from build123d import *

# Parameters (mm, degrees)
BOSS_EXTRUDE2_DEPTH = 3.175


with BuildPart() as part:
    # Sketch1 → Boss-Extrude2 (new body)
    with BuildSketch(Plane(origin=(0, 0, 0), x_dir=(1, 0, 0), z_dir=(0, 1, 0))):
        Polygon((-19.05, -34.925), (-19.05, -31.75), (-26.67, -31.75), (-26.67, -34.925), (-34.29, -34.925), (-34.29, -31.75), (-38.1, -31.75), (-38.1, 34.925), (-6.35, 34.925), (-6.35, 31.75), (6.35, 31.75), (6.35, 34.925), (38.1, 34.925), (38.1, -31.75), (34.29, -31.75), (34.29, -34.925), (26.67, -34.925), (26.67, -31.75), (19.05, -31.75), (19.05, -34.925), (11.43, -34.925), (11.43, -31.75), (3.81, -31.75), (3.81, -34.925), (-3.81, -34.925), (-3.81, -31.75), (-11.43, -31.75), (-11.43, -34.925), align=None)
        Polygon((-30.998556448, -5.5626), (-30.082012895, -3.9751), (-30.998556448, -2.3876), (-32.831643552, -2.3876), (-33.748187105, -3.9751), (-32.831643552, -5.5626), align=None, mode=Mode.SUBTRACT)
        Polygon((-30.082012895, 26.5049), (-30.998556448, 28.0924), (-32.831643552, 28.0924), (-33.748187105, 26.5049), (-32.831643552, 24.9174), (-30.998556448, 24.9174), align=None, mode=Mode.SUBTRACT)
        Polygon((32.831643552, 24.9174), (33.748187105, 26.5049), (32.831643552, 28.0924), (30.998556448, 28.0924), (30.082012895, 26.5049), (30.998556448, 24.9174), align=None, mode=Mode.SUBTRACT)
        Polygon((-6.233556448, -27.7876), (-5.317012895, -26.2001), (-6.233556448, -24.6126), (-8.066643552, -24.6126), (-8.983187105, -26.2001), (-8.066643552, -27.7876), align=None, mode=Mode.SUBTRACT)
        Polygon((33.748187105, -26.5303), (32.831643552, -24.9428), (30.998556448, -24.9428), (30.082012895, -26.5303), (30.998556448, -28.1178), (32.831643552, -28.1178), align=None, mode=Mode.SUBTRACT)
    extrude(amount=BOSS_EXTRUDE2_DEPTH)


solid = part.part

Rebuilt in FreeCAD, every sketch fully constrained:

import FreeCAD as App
import Part
import Sketcher
Q = App.Units.Quantity

doc = App.newDocument("Part")
body = doc.addObject("PartDesign::Body", "Body")

sketch1 = doc.addObject("Sketcher::SketchObject", "Sketch")
body.addObject(sketch1)
sketch1.AttachmentSupport = (doc.XZ_Plane, [""])
sketch1.MapMode = "FlatFace"
sketch1.addGeometry([
    Part.LineSegment(App.Vector(-19.1, 31.8, 0), App.Vector(-19.1, 34.9, 0)),
    Part.LineSegment(App.Vector(-19.1, 34.9, 0), App.Vector(-11.4, 34.9, 0)),
    Part.LineSegment(App.Vector(-11.4, 34.9, 0), App.Vector(-11.4, 31.8, 0)),
    Part.LineSegment(App.Vector(-11.4, 31.8, 0), App.Vector(-3.8, 31.8, 0)),
    Part.LineSegment(App.Vector(-3.8, 31.8, 0), App.Vector(-3.8, 34.9, 0)),
    Part.LineSegment(App.Vector(-3.8, 34.9, 0), App.Vector(3.8, 34.9, 0)),
    Part.LineSegment(App.Vector(3.8, 34.9, 0), App.Vector(3.8, 31.8, 0)),
    Part.LineSegment(App.Vector(3.8, 31.8, 0), App.Vector(11.4, 31.8, 0)),
    Part.LineSegment(App.Vector(11.4, 31.8, 0), App.Vector(11.4, 34.9, 0)),
    Part.LineSegment(App.Vector(11.4, 34.9, 0), App.Vector(19.1, 34.9, 0)),
    Part.LineSegment(App.Vector(19.1, 34.9, 0), App.Vector(19.1, 31.8, 0)),
    Part.LineSegment(App.Vector(19.1, 31.8, 0), App.Vector(26.7, 31.8, 0)),
    Part.LineSegment(App.Vector(26.7, 31.8, 0), App.Vector(26.7, 34.9, 0)),
    Part.LineSegment(App.Vector(26.7, 34.9, 0), App.Vector(34.3, 34.9, 0)),
    Part.LineSegment(App.Vector(34.3, 34.9, 0), App.Vector(34.3, 31.8, 0)),
    Part.LineSegment(App.Vector(34.3, 31.8, 0), App.Vector(38.1, 31.8, 0)),
    Part.LineSegment(App.Vector(38.1, 31.8, 0), App.Vector(38.1, -34.9, 0)),
    Part.LineSegment(App.Vector(38.1, -34.9, 0), App.Vector(6.3, -34.9, 0)),
    Part.LineSegment(App.Vector(6.3, -34.9, 0), App.Vector(6.3, -31.8, 0)),
    Part.LineSegment(App.Vector(6.3, -31.8, 0), App.Vector(-6.3, -31.8, 0)),
    Part.LineSegment(App.Vector(-6.3, -31.8, 0), App.Vector(-6.3, -34.9, 0)),
    Part.LineSegment(App.Vector(-6.3, -34.9, 0), App.Vector(-38.1, -34.9, 0)),
    Part.LineSegment(App.Vector(-38.1, -34.9, 0), App.Vector(-38.1, 31.8, 0)),
    Part.LineSegment(App.Vector(-38.1, 31.8, 0), App.Vector(-34.3, 31.8, 0)),
    Part.LineSegment(App.Vector(-34.3, 31.8, 0), App.Vector(-34.3, 34.9, 0)),
    Part.LineSegment(App.Vector(-34.3, 34.9, 0), App.Vector(-26.7, 34.9, 0)),
    Part.LineSegment(App.Vector(-26.7, 34.9, 0), App.Vector(-26.7, 31.8, 0)),
    Part.LineSegment(App.Vector(-26.7, 31.8, 0), App.Vector(-19.1, 31.8, 0)),
    Part.LineSegment(App.Vector(33.7, 26.5, 0), App.Vector(32.8, 28.1, 0)),
    Part.LineSegment(App.Vector(32.8, 28.1, 0), App.Vector(31, 28.1, 0)),
    Part.LineSegment(App.Vector(31, 28.1, 0), App.Vector(30.1, 26.5, 0)),
    Part.LineSegment(App.Vector(30.1, 26.5, 0), App.Vector(31, 24.9, 0)),
    Part.LineSegment(App.Vector(31, 24.9, 0), App.Vector(32.8, 24.9, 0)),
    Part.LineSegment(App.Vector(32.8, 24.9, 0), App.Vector(33.7, 26.5, 0)),
    Part.LineSegment(App.Vector(-6.2, 27.8, 0), App.Vector(-8.1, 27.8, 0)),
    Part.LineSegment(App.Vector(-8.1, 27.8, 0), App.Vector(-9, 26.2, 0)),
    Part.LineSegment(App.Vector(-9, 26.2, 0), App.Vector(-8.1, 24.6, 0)),
    Part.LineSegment(App.Vector(-8.1, 24.6, 0), App.Vector(-6.2, 24.6, 0)),
    Part.LineSegment(App.Vector(-6.2, 24.6, 0), App.Vector(-5.3, 26.2, 0)),
    Part.LineSegment(App.Vector(-5.3, 26.2, 0), App.Vector(-6.2, 27.8, 0)),
    Part.LineSegment(App.Vector(-31, 5.6, 0), App.Vector(-32.8, 5.6, 0)),
    Part.LineSegment(App.Vector(-32.8, 5.6, 0), App.Vector(-33.7, 4, 0)),
    Part.LineSegment(App.Vector(-33.7, 4, 0), App.Vector(-32.8, 2.4, 0)),
    Part.LineSegment(App.Vector(-32.8, 2.4, 0), App.Vector(-31, 2.4, 0)),
    Part.LineSegment(App.Vector(-31, 2.4, 0), App.Vector(-30.1, 4, 0)),
    Part.LineSegment(App.Vector(-30.1, 4, 0), App.Vector(-31, 5.6, 0)),
    Part.LineSegment(App.Vector(32.8, -24.9, 0), App.Vector(31, -24.9, 0)),
    Part.LineSegment(App.Vector(31, -24.9, 0), App.Vector(30.1, -26.5, 0)),
    Part.LineSegment(App.Vector(30.1, -26.5, 0), App.Vector(31, -28.1, 0)),
    Part.LineSegment(App.Vector(31, -28.1, 0), App.Vector(32.8, -28.1, 0)),
    Part.LineSegment(App.Vector(32.8, -28.1, 0), App.Vector(33.7, -26.5, 0)),
    Part.LineSegment(App.Vector(33.7, -26.5, 0), App.Vector(32.8, -24.9, 0)),
    Part.LineSegment(App.Vector(-30.1, -26.5, 0), App.Vector(-31, -24.9, 0)),
    Part.LineSegment(App.Vector(-31, -24.9, 0), App.Vector(-32.8, -24.9, 0)),
    Part.LineSegment(App.Vector(-32.8, -24.9, 0), App.Vector(-33.7, -26.5, 0)),
    Part.LineSegment(App.Vector(-33.7, -26.5, 0), App.Vector(-32.8, -28.1, 0)),
    Part.LineSegment(App.Vector(-32.8, -28.1, 0), App.Vector(-31, -28.1, 0)),
    Part.LineSegment(App.Vector(-31, -28.1, 0), App.Vector(-30.1, -26.5, 0)),
], False)
sketch1.addConstraint([
    Sketcher.Constraint("Coincident", 0, 2, 1, 1),
    Sketcher.Constraint("Coincident", 1, 2, 2, 1),
    Sketcher.Constraint("Coincident", 2, 2, 3, 1),
    Sketcher.Constraint("Coincident", 3, 2, 4, 1),
    Sketcher.Constraint("Coincident", 4, 2, 5, 1),
    Sketcher.Constraint("Coincident", 5, 2, 6, 1),
    Sketcher.Constraint("Coincident", 6, 2, 7, 1),
    Sketcher.Constraint("Coincident", 7, 2, 8, 1),
    Sketcher.Constraint("Coincident", 8, 2, 9, 1),
    Sketcher.Constraint("Coincident", 9, 2, 10, 1),
    Sketcher.Constraint("Coincident", 10, 2, 11, 1),
    Sketcher.Constraint("Coincident", 11, 2, 12, 1),
    Sketcher.Constraint("Coincident", 12, 2, 13, 1),
    Sketcher.Constraint("Coincident", 13, 2, 14, 1),
    Sketcher.Constraint("Coincident", 14, 2, 15, 1),
    Sketcher.Constraint("Coincident", 15, 2, 16, 1),
    Sketcher.Constraint("Coincident", 16, 2, 17, 1),
    Sketcher.Constraint("Coincident", 17, 2, 18, 1),
    Sketcher.Constraint("Coincident", 18, 2, 19, 1),
    Sketcher.Constraint("Coincident", 19, 2, 20, 1),
    Sketcher.Constraint("Coincident", 20, 2, 21, 1),
    Sketcher.Constraint("Coincident", 21, 2, 22, 1),
    Sketcher.Constraint("Coincident", 22, 2, 23, 1),
    Sketcher.Constraint("Coincident", 23, 2, 24, 1),
    Sketcher.Constraint("Coincident", 24, 2, 25, 1),
    Sketcher.Constraint("Coincident", 25, 2, 26, 1),
    Sketcher.Constraint("Coincident", 26, 2, 27, 1),
    Sketcher.Constraint("Coincident", 27, 2, 0, 1),
    Sketcher.Constraint("Coincident", 28, 2, 29, 1),
    Sketcher.Constraint("Coincident", 29, 2, 30, 1),
    Sketcher.Constraint("Coincident", 30, 2, 31, 1),
    Sketcher.Constraint("Coincident", 31, 2, 32, 1),
    Sketcher.Constraint("Coincident", 32, 2, 33, 1),
    Sketcher.Constraint("Coincident", 33, 2, 28, 1),
    Sketcher.Constraint("Coincident", 34, 2, 35, 1),
    Sketcher.Constraint("Coincident", 35, 2, 36, 1),
    Sketcher.Constraint("Coincident", 36, 2, 37, 1),
    Sketcher.Constraint("Coincident", 37, 2, 38, 1),
    Sketcher.Constraint("Coincident", 38, 2, 39, 1),
    Sketcher.Constraint("Coincident", 39, 2, 34, 1),
    Sketcher.Constraint("Coincident", 40, 2, 41, 1),
    Sketcher.Constraint("Coincident", 41, 2, 42, 1),
    Sketcher.Constraint("Coincident", 42, 2, 43, 1),
    Sketcher.Constraint("Coincident", 43, 2, 44, 1),
    Sketcher.Constraint("Coincident", 44, 2, 45, 1),
    Sketcher.Constraint("Coincident", 45, 2, 40, 1),
    Sketcher.Constraint("Coincident", 46, 2, 47, 1),
    Sketcher.Constraint("Coincident", 47, 2, 48, 1),
    Sketcher.Constraint("Coincident", 48, 2, 49, 1),
    Sketcher.Constraint("Coincident", 49, 2, 50, 1),
    Sketcher.Constraint("Coincident", 50, 2, 51, 1),
    Sketcher.Constraint("Coincident", 51, 2, 46, 1),
    Sketcher.Constraint("Coincident", 52, 2, 53, 1),
    Sketcher.Constraint("Coincident", 53, 2, 54, 1),
    Sketcher.Constraint("Coincident", 54, 2, 55, 1),
    Sketcher.Constraint("Coincident", 55, 2, 56, 1),
    Sketcher.Constraint("Coincident", 56, 2, 57, 1),
    Sketcher.Constraint("Coincident", 57, 2, 52, 1),
    Sketcher.Constraint("Vertical", 0),
    Sketcher.Constraint("Horizontal", 1),
    Sketcher.Constraint("Vertical", 2),
    Sketcher.Constraint("Horizontal", 3),
    Sketcher.Constraint("Vertical", 4),
    Sketcher.Constraint("Horizontal", 5),
    Sketcher.Constraint("Vertical", 6),
    Sketcher.Constraint("Horizontal", 7),
    Sketcher.Constraint("Vertical", 8),
    Sketcher.Constraint("Horizontal", 9),
    Sketcher.Constraint("Vertical", 10),
    Sketcher.Constraint("Horizontal", 11),
    Sketcher.Constraint("Vertical", 12),
    Sketcher.Constraint("Horizontal", 13),
    Sketcher.Constraint("Vertical", 14),
    Sketcher.Constraint("Horizontal", 15),
    Sketcher.Constraint("Vertical", 16),
    Sketcher.Constraint("Horizontal", 17),
    Sketcher.Constraint("Vertical", 18),
    Sketcher.Constraint("Horizontal", 19),
    Sketcher.Constraint("Vertical", 20),
    Sketcher.Constraint("Horizontal", 21),
    Sketcher.Constraint("Vertical", 22),
    Sketcher.Constraint("Horizontal", 23),
    Sketcher.Constraint("Vertical", 24),
    Sketcher.Constraint("Horizontal", 25),
    Sketcher.Constraint("Vertical", 26),
    Sketcher.Constraint("Horizontal", 27),
    Sketcher.Constraint("Horizontal", 29),
    Sketcher.Constraint("Horizontal", 32),
    Sketcher.Constraint("Horizontal", 34),
    Sketcher.Constraint("Horizontal", 37),
    Sketcher.Constraint("Horizontal", 40),
    Sketcher.Constraint("Horizontal", 43),
    Sketcher.Constraint("Horizontal", 46),
    Sketcher.Constraint("Horizontal", 49),
    Sketcher.Constraint("Horizontal", 53),
    Sketcher.Constraint("Horizontal", 56),
    Sketcher.Constraint("Symmetric", 3, 2, 6, 2, -2),
    Sketcher.Constraint("Symmetric", 1, 2, 8, 2, -2),
    Sketcher.Constraint("Symmetric", 17, 2, 20, 2, -2),
    Sketcher.Constraint("Symmetric", 15, 2, 22, 2, -2),
    Sketcher.Constraint("Symmetric", 13, 2, 24, 2, -2),
    Sketcher.Constraint("Symmetric", 11, 2, 26, 2, -2),
    Sketcher.Constraint("Symmetric", 46, 2, 52, 2, -2),
    Sketcher.Constraint("Symmetric", 50, 2, 54, 2, -2),
    Sketcher.Constraint("Symmetric", 49, 2, 55, 2, -2),
    Sketcher.Constraint("Symmetric", 47, 2, 57, 2, -2),
    Sketcher.Constraint("Parallel", 28, 31),
    Sketcher.Constraint("Parallel", 30, 33),
    Sketcher.Constraint("Parallel", 33, 35),
    Sketcher.Constraint("Parallel", 31, 36),
    Sketcher.Constraint("Parallel", 35, 38),
    Sketcher.Constraint("Parallel", 36, 39),
    Sketcher.Constraint("Parallel", 38, 41),
    Sketcher.Constraint("Parallel", 39, 42),
    Sketcher.Constraint("Parallel", 41, 44),
    Sketcher.Constraint("Parallel", 42, 45),
    Sketcher.Constraint("Parallel", 44, 47),
    Sketcher.Constraint("Parallel", 45, 48),
    Sketcher.Constraint("Parallel", 47, 50),
    Sketcher.Constraint("Parallel", 48, 51),
    Sketcher.Constraint("Parallel", 51, 52),
    Sketcher.Constraint("Parallel", 50, 54),
    Sketcher.Constraint("Parallel", 54, 57),
    Sketcher.Constraint("Horizontal", 1, 2, 4, 2),
    Sketcher.Constraint("Horizontal", 7, 2, 10, 2),
    Sketcher.Constraint("Horizontal", 9, 2, 12, 2),
    Sketcher.Constraint("Horizontal", 11, 2, 14, 2),
    Sketcher.Constraint("Horizontal", 30, 2, 33, 2),
    Sketcher.Constraint("Horizontal", 35, 2, 38, 2),
    Sketcher.Constraint("Horizontal", 41, 2, 44, 2),
    Sketcher.Constraint("Horizontal", 47, 2, 50, 2),
    Sketcher.Constraint("Vertical", 29, 2, 31, 2),
    Sketcher.Constraint("Vertical", 34, 2, 36, 2),
    Sketcher.Constraint("Vertical", 40, 2, 42, 2),
    Sketcher.Constraint("Vertical", 31, 2, 46, 2),
    Sketcher.Constraint("Vertical", 30, 2, 47, 2),
    Sketcher.Constraint("Vertical", 46, 2, 48, 2),
    Sketcher.Constraint("Vertical", 32, 2, 49, 2),
    Sketcher.Constraint("Vertical", 45, 2, 52, 2),
    Sketcher.Constraint("Vertical", 42, 2, 53, 2),
    Sketcher.Constraint("Vertical", 41, 2, 54, 2),
    Sketcher.Constraint("Equal", 1, 3),
    Sketcher.Constraint("Equal", 3, 5),
    Sketcher.Constraint("Equal", 7, 9),
    Sketcher.Constraint("Equal", 9, 11),
    Sketcher.Constraint("Equal", 11, 13),
    Sketcher.Constraint("Equal", 32, 34),
    Sketcher.Constraint("Equal", 14, 18),
    Sketcher.Constraint("Equal", 33, 35),
    Sketcher.Constraint("DistanceX", 1, 1, 1, 2, Q("0.3 in")),
    Sketcher.Constraint("DistanceX", 19, 2, 19, 1, Q("0.5 in")),
    Sketcher.Constraint("Angle", 28, Q("120 deg")),
    Sketcher.Constraint("DistanceX", 15, 1, 15, 2, Q("0.15 in")),
    Sketcher.Constraint("DistanceY", 18, 2, 6, 2, Q("2.5 in")),
    Sketcher.Constraint("DistanceY", 0, 1, 0, 2, Q("0.125 in")),
    Sketcher.Constraint("DistanceY", -1, 1, 2, 2, Q("1.25 in")),
    Sketcher.Constraint("DistanceY", -1, 1, 28, 2, Q("1.107 in")),
    Sketcher.Constraint("DistanceY", -1, 1, 31, 2, Q("0.982 in")),
    Sketcher.Constraint("DistanceY", -1, 1, 34, 2, Q("1.094 in")),
    Sketcher.Constraint("DistanceY", -1, 1, 40, 2, Q("0.219 in")),
    Sketcher.Constraint("DistanceY", 46, 2, -1, 1, Q("0.981 in")),
    Sketcher.Constraint("DistanceX", 29, 2, 29, 1, Q("1.833087 mm")),
    Sketcher.Constraint("DistanceX", -1, 1, 28, 2, Q("32.831644 mm")),
    Sketcher.Constraint("DistanceX", 34, 2, -1, 1, Q("8.066644 mm")),
])
pad1 = doc.addObject("PartDesign::Pad", "Pad")
body.addObject(pad1)
pad1.Profile = sketch1
pad1.Length = Q("0.125 in")
pad1.Reversed = True

doc.recompute()
